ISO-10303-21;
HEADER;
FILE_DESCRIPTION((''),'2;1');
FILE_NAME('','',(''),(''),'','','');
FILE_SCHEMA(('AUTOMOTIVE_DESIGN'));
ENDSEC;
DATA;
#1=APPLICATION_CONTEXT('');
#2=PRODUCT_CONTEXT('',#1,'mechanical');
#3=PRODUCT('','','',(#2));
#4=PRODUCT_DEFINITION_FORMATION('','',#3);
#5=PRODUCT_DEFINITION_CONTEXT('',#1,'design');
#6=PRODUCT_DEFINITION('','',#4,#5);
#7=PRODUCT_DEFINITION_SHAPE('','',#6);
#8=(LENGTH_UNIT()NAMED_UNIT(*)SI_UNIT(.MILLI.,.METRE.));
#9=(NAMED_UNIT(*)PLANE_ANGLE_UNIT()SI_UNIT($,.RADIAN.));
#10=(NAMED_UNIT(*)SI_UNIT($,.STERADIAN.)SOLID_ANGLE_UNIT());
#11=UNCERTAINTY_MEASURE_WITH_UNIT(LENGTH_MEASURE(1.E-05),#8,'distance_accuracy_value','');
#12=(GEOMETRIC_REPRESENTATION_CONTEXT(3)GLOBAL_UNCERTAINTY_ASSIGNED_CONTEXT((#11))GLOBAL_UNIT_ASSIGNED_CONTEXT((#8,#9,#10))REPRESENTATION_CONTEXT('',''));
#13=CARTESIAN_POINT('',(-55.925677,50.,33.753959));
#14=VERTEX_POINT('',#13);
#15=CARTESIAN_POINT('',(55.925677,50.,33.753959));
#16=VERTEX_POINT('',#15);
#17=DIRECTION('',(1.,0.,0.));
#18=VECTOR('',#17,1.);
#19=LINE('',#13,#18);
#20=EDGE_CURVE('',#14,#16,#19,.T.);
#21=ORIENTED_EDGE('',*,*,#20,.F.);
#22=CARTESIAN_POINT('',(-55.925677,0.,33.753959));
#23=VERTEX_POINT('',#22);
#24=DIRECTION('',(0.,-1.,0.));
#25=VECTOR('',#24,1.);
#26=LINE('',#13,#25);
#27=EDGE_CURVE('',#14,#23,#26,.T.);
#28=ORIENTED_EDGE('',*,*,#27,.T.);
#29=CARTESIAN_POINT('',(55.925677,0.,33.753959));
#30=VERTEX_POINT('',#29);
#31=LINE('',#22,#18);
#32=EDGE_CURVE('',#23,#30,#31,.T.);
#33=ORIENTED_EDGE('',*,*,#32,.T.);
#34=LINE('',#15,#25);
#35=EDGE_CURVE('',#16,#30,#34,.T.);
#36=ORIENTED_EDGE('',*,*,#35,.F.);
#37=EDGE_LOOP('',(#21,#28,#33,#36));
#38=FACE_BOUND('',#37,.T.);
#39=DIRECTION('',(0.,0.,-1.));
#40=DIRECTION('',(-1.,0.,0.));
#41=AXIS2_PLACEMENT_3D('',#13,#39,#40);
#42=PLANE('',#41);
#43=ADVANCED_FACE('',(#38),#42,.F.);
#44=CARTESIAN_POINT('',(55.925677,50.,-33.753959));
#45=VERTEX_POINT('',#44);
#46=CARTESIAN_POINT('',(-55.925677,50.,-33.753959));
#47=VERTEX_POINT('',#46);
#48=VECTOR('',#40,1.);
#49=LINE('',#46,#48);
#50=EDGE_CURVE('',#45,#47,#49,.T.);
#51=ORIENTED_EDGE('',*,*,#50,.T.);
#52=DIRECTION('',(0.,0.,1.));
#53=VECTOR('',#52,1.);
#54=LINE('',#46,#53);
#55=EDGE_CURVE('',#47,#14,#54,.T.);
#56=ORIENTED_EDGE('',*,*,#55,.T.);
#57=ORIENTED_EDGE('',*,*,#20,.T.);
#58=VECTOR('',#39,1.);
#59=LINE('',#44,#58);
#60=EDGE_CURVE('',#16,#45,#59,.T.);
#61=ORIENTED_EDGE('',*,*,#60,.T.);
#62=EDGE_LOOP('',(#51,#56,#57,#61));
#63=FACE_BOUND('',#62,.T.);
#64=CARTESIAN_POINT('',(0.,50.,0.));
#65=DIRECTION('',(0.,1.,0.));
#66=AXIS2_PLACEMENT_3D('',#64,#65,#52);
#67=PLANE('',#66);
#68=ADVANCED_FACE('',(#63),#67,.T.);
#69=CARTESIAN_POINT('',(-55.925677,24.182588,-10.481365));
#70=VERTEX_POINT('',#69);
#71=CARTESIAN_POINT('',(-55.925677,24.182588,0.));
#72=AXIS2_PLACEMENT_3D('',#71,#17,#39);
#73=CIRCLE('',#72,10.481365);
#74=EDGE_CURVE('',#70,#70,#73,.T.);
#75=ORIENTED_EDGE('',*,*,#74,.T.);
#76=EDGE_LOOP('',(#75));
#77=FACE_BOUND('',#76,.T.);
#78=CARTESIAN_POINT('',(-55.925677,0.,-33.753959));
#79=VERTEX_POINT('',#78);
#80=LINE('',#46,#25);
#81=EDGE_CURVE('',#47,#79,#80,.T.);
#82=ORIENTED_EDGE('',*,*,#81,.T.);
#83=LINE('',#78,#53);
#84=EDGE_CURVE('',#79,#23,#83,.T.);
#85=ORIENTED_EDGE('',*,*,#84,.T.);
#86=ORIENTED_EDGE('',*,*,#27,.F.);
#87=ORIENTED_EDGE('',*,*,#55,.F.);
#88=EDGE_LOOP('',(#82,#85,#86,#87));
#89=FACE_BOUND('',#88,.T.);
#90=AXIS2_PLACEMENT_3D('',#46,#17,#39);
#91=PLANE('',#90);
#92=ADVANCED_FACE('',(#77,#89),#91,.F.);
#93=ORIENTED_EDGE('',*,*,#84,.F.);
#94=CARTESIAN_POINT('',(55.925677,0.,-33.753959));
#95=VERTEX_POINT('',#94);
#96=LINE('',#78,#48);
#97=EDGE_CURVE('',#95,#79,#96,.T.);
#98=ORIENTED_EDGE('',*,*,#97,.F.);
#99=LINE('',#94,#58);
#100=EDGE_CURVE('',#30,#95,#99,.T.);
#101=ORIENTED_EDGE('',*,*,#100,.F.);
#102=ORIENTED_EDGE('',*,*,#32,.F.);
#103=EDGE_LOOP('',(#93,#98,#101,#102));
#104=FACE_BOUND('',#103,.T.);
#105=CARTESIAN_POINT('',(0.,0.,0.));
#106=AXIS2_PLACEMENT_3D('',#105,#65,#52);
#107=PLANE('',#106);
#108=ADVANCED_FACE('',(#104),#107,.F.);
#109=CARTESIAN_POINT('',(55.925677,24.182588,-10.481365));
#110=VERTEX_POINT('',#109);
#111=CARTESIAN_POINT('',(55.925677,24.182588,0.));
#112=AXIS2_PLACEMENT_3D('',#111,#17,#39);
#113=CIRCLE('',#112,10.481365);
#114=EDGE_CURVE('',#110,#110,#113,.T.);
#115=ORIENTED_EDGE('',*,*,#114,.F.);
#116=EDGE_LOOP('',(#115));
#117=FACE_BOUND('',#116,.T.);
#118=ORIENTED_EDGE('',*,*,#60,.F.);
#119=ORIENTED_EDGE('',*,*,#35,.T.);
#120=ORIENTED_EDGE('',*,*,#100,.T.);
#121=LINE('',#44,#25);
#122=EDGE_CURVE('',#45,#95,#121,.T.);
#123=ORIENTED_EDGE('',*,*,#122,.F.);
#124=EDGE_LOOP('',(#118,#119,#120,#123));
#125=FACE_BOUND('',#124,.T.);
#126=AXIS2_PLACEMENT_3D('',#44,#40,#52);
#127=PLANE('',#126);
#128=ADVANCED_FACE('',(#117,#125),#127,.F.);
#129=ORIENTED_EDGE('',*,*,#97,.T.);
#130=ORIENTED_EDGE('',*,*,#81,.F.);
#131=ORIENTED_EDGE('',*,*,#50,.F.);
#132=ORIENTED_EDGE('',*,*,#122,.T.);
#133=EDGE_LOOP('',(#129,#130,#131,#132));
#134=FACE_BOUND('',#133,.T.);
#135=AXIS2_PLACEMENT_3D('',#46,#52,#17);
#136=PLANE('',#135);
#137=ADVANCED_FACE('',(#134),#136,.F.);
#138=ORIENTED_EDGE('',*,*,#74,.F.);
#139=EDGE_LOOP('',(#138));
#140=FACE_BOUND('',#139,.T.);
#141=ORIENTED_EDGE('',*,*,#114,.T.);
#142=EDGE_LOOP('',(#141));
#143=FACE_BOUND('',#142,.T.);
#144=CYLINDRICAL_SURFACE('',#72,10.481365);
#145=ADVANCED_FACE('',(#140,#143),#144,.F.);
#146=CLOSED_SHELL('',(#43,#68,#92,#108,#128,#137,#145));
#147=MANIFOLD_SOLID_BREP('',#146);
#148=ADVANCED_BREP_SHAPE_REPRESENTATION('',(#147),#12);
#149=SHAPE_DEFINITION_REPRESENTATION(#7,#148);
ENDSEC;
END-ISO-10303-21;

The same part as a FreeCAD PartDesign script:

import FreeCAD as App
import Part
import Sketcher
from FreeCAD import Vector


def add_polygon(sketch, points):
    """Adds a closed chain of lines whose ends are joined by coincident constraints."""
    first, n = sketch.GeometryCount, len(points)
    for a, b in zip(points, points[1:] + points[:1]):
        sketch.addGeometry(Part.LineSegment(App.Vector(*a, 0), App.Vector(*b, 0)), False)
    for i in range(n):
        sketch.addConstraint(Sketcher.Constraint("Coincident", first + i, 2, first + (i + 1) % n, 1))

doc = App.newDocument("Part")
body = doc.addObject("PartDesign::Body", "Body")

sketch1 = body.newObject("Sketcher::SketchObject", "Sketch")
sketch1.AttachmentSupport = (doc.getObject("XZ_Plane"), [""])
sketch1.MapMode = "FlatFace"
add_polygon(sketch1, [(-56, -34), (-56, 34), (56, 34), (56, -34)])
sketch1.addConstraint(Sketcher.Constraint("Vertical", 0))
sketch1.addConstraint(Sketcher.Constraint("Horizontal", 1))
sketch1.addConstraint(Sketcher.Constraint("Vertical", 2))
sketch1.addConstraint(Sketcher.Constraint("Horizontal", 3))
sketch1.addConstraint(Sketcher.Constraint("Symmetric", 0, 2, 2, 2, -1, 1))
sketch1.addConstraint(Sketcher.Constraint("DistanceX", 1, 1, 1, 2, 111.851354))
sketch1.addConstraint(Sketcher.Constraint("DistanceY", 0, 1, 0, 2, 67.507918))
pad1 = body.newObject("PartDesign::Pad", "Pad")
pad1.Profile = sketch1
pad1.Length = 50
pad1.Reversed = True

sketch2 = body.newObject("Sketcher::SketchObject", "Sketch001")
sketch2.AttachmentSupport = (doc.getObject("YZ_Plane"), [""])
sketch2.MapMode = "FlatFace"
sketch2.AttachmentOffset = App.Placement(Vector(0, 0, 55.925677), App.Rotation())
sketch2.addGeometry(Part.Circle(Vector(24, 0, 0), Vector(0, 0, 1), 10), False)
sketch2.addConstraint(Sketcher.Constraint("PointOnObject", 0, 3, -1))
sketch2.addConstraint(Sketcher.Constraint("Diameter", 0, 20.96273))
sketch2.addConstraint(Sketcher.Constraint("DistanceX", -1, 1, 0, 3, 24.182588))
pocket1 = body.newObject("PartDesign::Pocket", "Pocket")
pocket1.Profile = sketch2
pocket1.Type = "ThroughAll"

doc.recompute()
